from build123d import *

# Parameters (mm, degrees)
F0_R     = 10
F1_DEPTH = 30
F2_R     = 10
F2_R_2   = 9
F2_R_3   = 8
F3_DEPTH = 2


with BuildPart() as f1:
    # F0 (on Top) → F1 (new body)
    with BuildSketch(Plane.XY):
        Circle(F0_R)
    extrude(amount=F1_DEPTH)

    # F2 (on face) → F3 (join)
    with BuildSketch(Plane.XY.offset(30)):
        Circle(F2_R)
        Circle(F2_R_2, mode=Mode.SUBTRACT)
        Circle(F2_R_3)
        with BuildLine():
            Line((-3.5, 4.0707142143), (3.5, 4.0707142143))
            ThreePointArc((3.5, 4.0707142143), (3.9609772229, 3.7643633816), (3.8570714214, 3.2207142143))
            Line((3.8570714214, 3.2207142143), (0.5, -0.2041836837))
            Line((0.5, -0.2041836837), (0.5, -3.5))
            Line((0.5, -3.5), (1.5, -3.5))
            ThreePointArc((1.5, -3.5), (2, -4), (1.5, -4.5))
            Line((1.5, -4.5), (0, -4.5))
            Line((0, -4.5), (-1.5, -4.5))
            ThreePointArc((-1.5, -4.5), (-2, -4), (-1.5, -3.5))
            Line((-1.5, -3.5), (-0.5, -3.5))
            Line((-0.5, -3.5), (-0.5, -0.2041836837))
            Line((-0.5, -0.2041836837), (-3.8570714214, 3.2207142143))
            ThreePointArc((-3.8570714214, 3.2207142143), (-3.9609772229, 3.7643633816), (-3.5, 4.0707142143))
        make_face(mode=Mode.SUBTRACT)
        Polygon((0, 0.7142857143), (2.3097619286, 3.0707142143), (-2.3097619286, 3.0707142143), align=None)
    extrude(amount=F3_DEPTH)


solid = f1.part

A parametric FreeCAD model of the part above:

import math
import FreeCAD as App
import Part
import Sketcher
from FreeCAD import Vector

doc = App.newDocument("Part")
body = doc.addObject("PartDesign::Body", "Body")

sketch1 = body.newObject("Sketcher::SketchObject", "Sketch")
sketch1.AttachmentSupport = (doc.getObject("XY_Plane"), [""])
sketch1.MapMode = "FlatFace"
sketch1.addGeometry(Part.Circle(Vector(0, 0, 0), Vector(0, 0, 1), 10), False)
sketch1.addConstraint(Sketcher.Constraint("Coincident", 0, 3, -1, 1))
sketch1.addConstraint(Sketcher.Constraint("Diameter", 0, 20.0))
pad1 = body.newObject("PartDesign::Pad", "Pad")
pad1.Profile = sketch1
pad1.Length = 30

sketch2 = body.newObject("Sketcher::SketchObject", "Sketch001")
sketch2.AttachmentSupport = (doc.getObject("XY_Plane"), [""])
sketch2.MapMode = "FlatFace"
sketch2.AttachmentOffset = App.Placement(Vector(0, 0, 30), App.Rotation())
sketch2.addGeometry(Part.Circle(Vector(0, 0, 0), Vector(0, 0, 1), 10), False)
sketch2.addGeometry(Part.Circle(Vector(0, 0, 0), Vector(0, 0, 1), 9), False)
sketch2.addGeometry(Part.Circle(Vector(0, 0, 0), Vector(0, 0, 1), 8), False)
sketch2.addGeometry(Part.ArcOfCircle(Part.Circle(Vector(-3.5, 3.6, 0), Vector(0, 0, 1), 0.5), math.radians(90), math.radians(224)), False)
sketch2.addGeometry(Part.LineSegment(Vector(-3.5, 4.1, 0), Vector(3.5, 4.1, 0)), False)
sketch2.addGeometry(Part.ArcOfCircle(Part.Circle(Vector(3.5, 3.6, 0), Vector(0, 0, 1), 0.5), math.radians(-44), math.radians(90)), False)
sketch2.addGeometry(Part.LineSegment(Vector(3.9, 3.2, 0), Vector(0.5, -0.2, 0)), False)
sketch2.addGeometry(Part.LineSegment(Vector(0.5, -0.2, 0), Vector(0.5, -3.5, 0)), False)
sketch2.addGeometry(Part.LineSegment(Vector(0.5, -3.5, 0), Vector(1.5, -3.5, 0)), False)
sketch2.addGeometry(Part.ArcOfCircle(Part.Circle(Vector(1.5, -4, 0), Vector(0, 0, 1), 0.5), math.radians(-90), math.radians(90)), False)
sketch2.addGeometry(Part.LineSegment(Vector(1.5, -4.5, 0), Vector(-1.5, -4.5, 0)), False)
sketch2.addGeometry(Part.ArcOfCircle(Part.Circle(Vector(-1.5, -4, 0), Vector(0, 0, 1), 0.5), math.radians(90), math.radians(270)), False)
sketch2.addGeometry(Part.LineSegment(Vector(-1.5, -3.5, 0), Vector(-0.5, -3.5, 0)), False)
sketch2.addGeometry(Part.LineSegment(Vector(-0.5, -3.5, 0), Vector(-0.5, -0.2, 0)), False)
sketch2.addGeometry(Part.LineSegment(Vector(-0.5, -0.2, 0), Vector(-3.9, 3.2, 0)), False)
sketch2.addGeometry(Part.LineSegment(Vector(0, 0.7, 0), Vector(2.3, 3.1, 0)), False)
sketch2.addGeometry(Part.LineSegment(Vector(2.3, 3.1, 0), Vector(-2.3, 3.1, 0)), False)
sketch2.addGeometry(Part.LineSegment(Vector(-2.3, 3.1, 0), Vector(0, 0.7, 0)), False)
sketch2.addConstraint(Sketcher.Constraint("Tangent", 3, 1, 4, 1))
sketch2.addConstraint(Sketcher.Constraint("Tangent", 4, 2, 5, 2))
sketch2.addConstraint(Sketcher.Constraint("Tangent", 5, 1, 6, 1))
sketch2.addConstraint(Sketcher.Constraint("Coincident", 6, 2, 7, 1))
sketch2.addConstraint(Sketcher.Constraint("Coincident", 7, 2, 8, 1))
sketch2.addConstraint(Sketcher.Constraint("Tangent", 8, 2, 9, 2))
sketch2.addConstraint(Sketcher.Constraint("Tangent", 9, 1, 10, 1))
sketch2.addConstraint(Sketcher.Constraint("Tangent", 10, 2, 11, 2))
sketch2.addConstraint(Sketcher.Constraint("Tangent", 11, 1, 12, 1))
sketch2.addConstraint(Sketcher.Constraint("Coincident", 12, 2, 13, 1))
sketch2.addConstraint(Sketcher.Constraint("Coincident", 13, 2, 14, 1))
sketch2.addConstraint(Sketcher.Constraint("Tangent", 14, 2, 3, 2))
sketch2.addConstraint(Sketcher.Constraint("Coincident", 15, 2, 16, 1))
sketch2.addConstraint(Sketcher.Constraint("Coincident", 16, 2, 17, 1))
sketch2.addConstraint(Sketcher.Constraint("Coincident", 17, 2, 15, 1))
sketch2.addConstraint(Sketcher.Constraint("Horizontal", 4))
sketch2.addConstraint(Sketcher.Constraint("Vertical", 7))
sketch2.addConstraint(Sketcher.Constraint("Horizontal", 8))
sketch2.addConstraint(Sketcher.Constraint("Horizontal", 10))
sketch2.addConstraint(Sketcher.Constraint("Horizontal", 12))
sketch2.addConstraint(Sketcher.Constraint("Vertical", 13))
sketch2.addConstraint(Sketcher.Constraint("Horizontal", 16))
sketch2.addConstraint(Sketcher.Constraint("Coincident", 0, 3, -1, 1))
sketch2.addConstraint(Sketcher.Constraint("Coincident", 1, 3, -1, 1))
sketch2.addConstraint(Sketcher.Constraint("Coincident", 2, 3, -1, 1))
sketch2.addConstraint(Sketcher.Constraint("Equal", 3, 5))
sketch2.addConstraint(Sketcher.Constraint("Equal", 5, 9))
sketch2.addConstraint(Sketcher.Constraint("Equal", 9, 11))
sketch2.addConstraint(Sketcher.Constraint("Symmetric", 6, 2, 13, 2, -2))
sketch2.addConstraint(Sketcher.Constraint("PointOnObject", 17, 2, -2))
sketch2.addConstraint(Sketcher.Constraint("Parallel", 6, 15))
sketch2.addConstraint(Sketcher.Constraint("Parallel", 14, 17))
sketch2.addConstraint(Sketcher.Constraint("Horizontal", 5, 1, 14, 2))
sketch2.addConstraint(Sketcher.Constraint("Equal", 8, 12))
sketch2.addConstraint(Sketcher.Constraint("Diameter", 0, 20.0))
sketch2.addConstraint(Sketcher.Constraint("Diameter", 1, 18.0))
sketch2.addConstraint(Sketcher.Constraint("Diameter", 2, 16.0))
sketch2.addConstraint(Sketcher.Constraint("Radius", 3, 0.5))
sketch2.addConstraint(Sketcher.Constraint("DistanceX", 4, 1, 4, 2, 7.0))
sketch2.addConstraint(Sketcher.Constraint("DistanceX", 8, 1, 8, 2, 1.0))
sketch2.addConstraint(Sketcher.Constraint("DistanceX", 10, 2, 10, 1, 3.0))
sketch2.addConstraint(Sketcher.Constraint("DistanceY", 9, 3, -1, 1, 4.0))
sketch2.addConstraint(Sketcher.Constraint("DistanceY", 15, 2, 4, 2, 1.0))
sketch2.addConstraint(Sketcher.Constraint("DistanceY", 5, 1, 5, 3, 0.35))
sketch2.addConstraint(Sketcher.Constraint("Distance", 15, 3.29966))
sketch2.addConstraint(Sketcher.Constraint("DistanceY", 7, 2, 7, 1, 3.295816))
pad2 = body.newObject("PartDesign::Pad", "Pad001")
pad2.Profile = sketch2
pad2.Length = 2

doc.recompute()
